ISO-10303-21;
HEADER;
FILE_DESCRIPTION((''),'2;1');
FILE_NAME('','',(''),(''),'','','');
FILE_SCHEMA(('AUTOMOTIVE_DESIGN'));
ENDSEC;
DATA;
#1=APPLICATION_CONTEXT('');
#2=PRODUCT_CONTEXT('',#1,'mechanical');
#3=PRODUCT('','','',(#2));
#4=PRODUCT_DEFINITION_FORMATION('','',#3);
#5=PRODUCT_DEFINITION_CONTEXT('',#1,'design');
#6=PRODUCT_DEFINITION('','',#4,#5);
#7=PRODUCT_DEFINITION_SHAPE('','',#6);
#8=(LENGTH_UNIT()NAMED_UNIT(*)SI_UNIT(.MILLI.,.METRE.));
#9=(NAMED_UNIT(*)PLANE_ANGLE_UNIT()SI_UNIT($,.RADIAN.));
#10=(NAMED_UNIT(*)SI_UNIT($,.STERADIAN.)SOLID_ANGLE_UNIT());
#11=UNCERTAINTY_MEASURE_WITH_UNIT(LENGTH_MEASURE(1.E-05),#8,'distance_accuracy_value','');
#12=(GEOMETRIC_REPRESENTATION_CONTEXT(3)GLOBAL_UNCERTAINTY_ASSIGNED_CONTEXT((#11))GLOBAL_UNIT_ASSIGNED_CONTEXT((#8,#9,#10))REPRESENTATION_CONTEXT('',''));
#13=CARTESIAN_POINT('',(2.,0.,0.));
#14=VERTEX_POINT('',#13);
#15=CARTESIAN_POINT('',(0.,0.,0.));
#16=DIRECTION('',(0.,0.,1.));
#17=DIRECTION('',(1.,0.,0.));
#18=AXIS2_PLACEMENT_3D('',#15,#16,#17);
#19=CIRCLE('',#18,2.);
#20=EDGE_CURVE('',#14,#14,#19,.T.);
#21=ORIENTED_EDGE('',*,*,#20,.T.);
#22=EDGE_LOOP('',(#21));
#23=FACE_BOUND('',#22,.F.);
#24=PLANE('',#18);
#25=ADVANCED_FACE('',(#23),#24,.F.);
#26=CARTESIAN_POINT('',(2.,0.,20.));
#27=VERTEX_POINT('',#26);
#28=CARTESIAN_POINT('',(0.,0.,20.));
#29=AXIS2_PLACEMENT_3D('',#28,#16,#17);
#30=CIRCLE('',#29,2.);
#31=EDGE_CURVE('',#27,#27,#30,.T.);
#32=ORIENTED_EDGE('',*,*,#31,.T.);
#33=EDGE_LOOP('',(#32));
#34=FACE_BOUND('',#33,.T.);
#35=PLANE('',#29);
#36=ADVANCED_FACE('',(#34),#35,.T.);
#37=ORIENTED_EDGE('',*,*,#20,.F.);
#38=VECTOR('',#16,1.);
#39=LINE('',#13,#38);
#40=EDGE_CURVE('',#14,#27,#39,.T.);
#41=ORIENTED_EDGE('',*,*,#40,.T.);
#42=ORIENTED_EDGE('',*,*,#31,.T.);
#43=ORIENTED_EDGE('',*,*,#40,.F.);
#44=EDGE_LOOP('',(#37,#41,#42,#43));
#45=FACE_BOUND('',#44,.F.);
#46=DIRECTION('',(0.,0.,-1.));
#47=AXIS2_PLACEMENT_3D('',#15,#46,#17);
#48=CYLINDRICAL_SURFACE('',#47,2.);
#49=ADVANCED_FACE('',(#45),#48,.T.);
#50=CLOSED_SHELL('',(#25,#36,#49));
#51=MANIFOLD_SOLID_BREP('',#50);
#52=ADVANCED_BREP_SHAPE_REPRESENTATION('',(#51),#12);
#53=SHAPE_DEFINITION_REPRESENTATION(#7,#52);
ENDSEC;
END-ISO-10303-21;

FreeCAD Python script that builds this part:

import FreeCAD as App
import Part
import Sketcher
from FreeCAD import Vector

doc = App.newDocument("Part")
body = doc.addObject("PartDesign::Body", "Body")

sketch1 = body.newObject("Sketcher::SketchObject", "Sketch")
sketch1.AttachmentSupport = (doc.getObject("XY_Plane"), [""])
sketch1.MapMode = "FlatFace"
sketch1.addGeometry(Part.Circle(Vector(0, 0, 0), Vector(0, 0, 1), 2), False)
sketch1.addConstraint([
    Sketcher.Constraint("Coincident", 0, 3, -1, 1),
    Sketcher.Constraint("Diameter", 0, 4.0),
])
pad1 = body.newObject("PartDesign::Pad", "Pad")
pad1.Profile = sketch1
pad1.Length = 20

doc.recompute()
